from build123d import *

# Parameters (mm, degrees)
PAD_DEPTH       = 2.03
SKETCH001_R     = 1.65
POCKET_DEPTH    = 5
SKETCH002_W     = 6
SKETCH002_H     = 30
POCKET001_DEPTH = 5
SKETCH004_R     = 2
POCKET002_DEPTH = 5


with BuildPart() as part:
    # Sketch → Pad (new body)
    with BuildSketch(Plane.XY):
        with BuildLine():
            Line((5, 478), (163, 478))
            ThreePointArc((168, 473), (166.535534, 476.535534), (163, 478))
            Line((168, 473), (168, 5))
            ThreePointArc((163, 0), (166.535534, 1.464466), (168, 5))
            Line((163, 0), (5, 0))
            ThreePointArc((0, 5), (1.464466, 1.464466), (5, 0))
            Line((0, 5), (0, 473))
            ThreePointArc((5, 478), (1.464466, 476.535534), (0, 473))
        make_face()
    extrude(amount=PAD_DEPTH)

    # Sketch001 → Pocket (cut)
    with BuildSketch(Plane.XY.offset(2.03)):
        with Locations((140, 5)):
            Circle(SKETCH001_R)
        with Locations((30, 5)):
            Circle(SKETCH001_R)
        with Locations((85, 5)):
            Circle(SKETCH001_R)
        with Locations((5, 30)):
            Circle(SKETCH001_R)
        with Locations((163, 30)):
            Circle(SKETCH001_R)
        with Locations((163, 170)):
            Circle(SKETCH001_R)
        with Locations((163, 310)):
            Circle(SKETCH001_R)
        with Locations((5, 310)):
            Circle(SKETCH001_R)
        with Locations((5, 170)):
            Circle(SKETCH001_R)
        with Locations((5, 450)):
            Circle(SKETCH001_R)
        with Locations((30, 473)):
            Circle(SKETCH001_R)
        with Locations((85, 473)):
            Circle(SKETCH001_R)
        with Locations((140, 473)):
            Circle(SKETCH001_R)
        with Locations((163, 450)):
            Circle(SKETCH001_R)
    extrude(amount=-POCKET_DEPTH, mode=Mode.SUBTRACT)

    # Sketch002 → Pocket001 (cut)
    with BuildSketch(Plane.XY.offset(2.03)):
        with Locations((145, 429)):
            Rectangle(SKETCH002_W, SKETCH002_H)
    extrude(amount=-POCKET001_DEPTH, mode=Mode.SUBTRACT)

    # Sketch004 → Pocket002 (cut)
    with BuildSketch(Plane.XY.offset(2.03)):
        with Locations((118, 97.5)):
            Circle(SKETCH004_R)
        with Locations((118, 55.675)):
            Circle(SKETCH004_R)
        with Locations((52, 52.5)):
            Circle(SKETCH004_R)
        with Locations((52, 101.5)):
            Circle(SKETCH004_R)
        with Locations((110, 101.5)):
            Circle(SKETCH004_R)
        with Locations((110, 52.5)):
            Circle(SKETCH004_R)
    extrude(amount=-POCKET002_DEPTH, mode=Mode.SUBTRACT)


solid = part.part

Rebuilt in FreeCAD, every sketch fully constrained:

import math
import FreeCAD as App
import Part
import Sketcher

V = App.Vector
Q = App.Units.Quantity


def add_polygon(sketch, points):
    """Adds a closed chain of lines whose ends are joined by coincident constraints."""
    first, n = sketch.GeometryCount, len(points)
    for a, b in zip(points, points[1:] + points[:1]):
        sketch.addGeometry(Part.LineSegment(App.Vector(*a, 0), App.Vector(*b, 0)), False)
    for i in range(n):
        sketch.addConstraint(Sketcher.Constraint("Coincident", first + i, 2, first + (i + 1) % n, 1))

doc = App.newDocument("Part")
params = doc.addObject("Spreadsheet::Sheet", "Params")
for row, (alias, value) in enumerate([
    ("sketch1_radius", "5 mm"),
    ("sketch1_width", "158 mm"),
    ("sketch1_height", "468 mm"),
    ("pad1_length", "2.03 mm"),
    ("sketch2_diameter", "3.3 mm"),
    ("pocket1_length", "5 mm"),
    ("sketch3_width", "6 mm"),
    ("sketch3_height", "30 mm"),
    ("pocket2_length", "5 mm"),
    ("sketch4_diameter", "4 mm"),
    ("pocket3_length", "5 mm"),
], start=1):
    params.set(f"A{row}", alias)
    params.set(f"B{row}", "=" + value)
    params.setAlias(f"B{row}", alias)

body = doc.addObject("PartDesign::Body", "Body")

# Sketch on XY plane
sketch1 = body.newObject("Sketcher::SketchObject", "Sketch")
sketch1.AttachmentSupport = (doc.getObject("XY_Plane"), [""])
sketch1.MapMode = "FlatFace"
sketch1.addGeometry(Part.LineSegment(V(163, 478, 0), V(5, 478, 0)), False)
sketch1.addGeometry(Part.ArcOfCircle(Part.Circle(V(5, 473, 0), V(0, 0, 1), 5), math.radians(90), math.radians(180)), False)
sketch1.addGeometry(Part.LineSegment(V(0, 473, 0), V(0, 5, 0)), False)
sketch1.addGeometry(Part.ArcOfCircle(Part.Circle(V(5, 5, 0), V(0, 0, 1), 5), math.radians(180), math.radians(270)), False)
sketch1.addGeometry(Part.LineSegment(V(5, 0, 0), V(163, 0, 0)), False)
sketch1.addGeometry(Part.ArcOfCircle(Part.Circle(V(163, 5, 0), V(0, 0, 1), 5), math.radians(-90), math.radians(0)), False)
sketch1.addGeometry(Part.LineSegment(V(168, 5, 0), V(168, 473, 0)), False)
sketch1.addGeometry(Part.ArcOfCircle(Part.Circle(V(163, 473, 0), V(0, 0, 1), 5), math.radians(0), math.radians(90)), False)
sketch1.addConstraint(Sketcher.Constraint("Tangent", 0, 2, 1, 1))
sketch1.addConstraint(Sketcher.Constraint("Tangent", 1, 2, 2, 1))
sketch1.addConstraint(Sketcher.Constraint("Tangent", 2, 2, 3, 1))
sketch1.addConstraint(Sketcher.Constraint("Tangent", 3, 2, 4, 1))
sketch1.addConstraint(Sketcher.Constraint("Tangent", 4, 2, 5, 1))
sketch1.addConstraint(Sketcher.Constraint("Tangent", 5, 2, 6, 1))
sketch1.addConstraint(Sketcher.Constraint("Tangent", 6, 2, 7, 1))
sketch1.addConstraint(Sketcher.Constraint("Tangent", 7, 2, 0, 1))
sketch1.addConstraint(Sketcher.Constraint("Horizontal", 0))
sketch1.addConstraint(Sketcher.Constraint("Vertical", 2))
sketch1.addConstraint(Sketcher.Constraint("Horizontal", 4))
sketch1.addConstraint(Sketcher.Constraint("Vertical", 6))
sketch1.addConstraint(Sketcher.Constraint("Equal", 1, 3))
sketch1.addConstraint(Sketcher.Constraint("Equal", 3, 5))
sketch1.addConstraint(Sketcher.Constraint("Equal", 5, 7))
sketch1.addConstraint(Sketcher.Constraint("PointOnObject", 1, 2, -2))
sketch1.addConstraint(Sketcher.Constraint("PointOnObject", 3, 2, -1))
sketch1.addConstraint(Sketcher.Constraint("Radius", 1, Q("5 mm")))
sketch1.addConstraint(Sketcher.Constraint("DistanceX", 0, 2, 0, 1, Q("158 mm")))
sketch1.addConstraint(Sketcher.Constraint("DistanceY", 2, 2, 2, 1, Q("468 mm")))
sketch1.setExpression("Constraints[17]", "Params.sketch1_radius")
sketch1.setExpression("Constraints[18]", "Params.sketch1_width")
sketch1.setExpression("Constraints[19]", "Params.sketch1_height")
pad1 = body.newObject("PartDesign::Pad", "Pad")
pad1.Profile = sketch1
pad1.setExpression("Length", "Params.pad1_length")

# Sketch on XY plane
sketch2 = body.newObject("Sketcher::SketchObject", "Sketch001")
sketch2.AttachmentSupport = (doc.getObject("XY_Plane"), [""])
sketch2.MapMode = "FlatFace"
sketch2.AttachmentOffset = App.Placement(V(0, 0, 2.03), App.Rotation())
sketch2.addGeometry(Part.Circle(V(140, 5, 0), V(0, 0, 1), 1.6), False)
sketch2.addGeometry(Part.Circle(V(30, 5, 0), V(0, 0, 1), 1.6), False)
sketch2.addGeometry(Part.Circle(V(85, 5, 0), V(0, 0, 1), 1.6), False)
sketch2.addGeometry(Part.Circle(V(5, 30, 0), V(0, 0, 1), 1.6), False)
sketch2.addGeometry(Part.Circle(V(163, 30, 0), V(0, 0, 1), 1.6), False)
sketch2.addGeometry(Part.Circle(V(163, 170, 0), V(0, 0, 1), 1.6), False)
sketch2.addGeometry(Part.Circle(V(163, 310, 0), V(0, 0, 1), 1.6), False)
sketch2.addGeometry(Part.Circle(V(5, 310, 0), V(0, 0, 1), 1.6), False)
sketch2.addGeometry(Part.Circle(V(5, 170, 0), V(0, 0, 1), 1.6), False)
sketch2.addGeometry(Part.Circle(V(5, 450, 0), V(0, 0, 1), 1.6), False)
sketch2.addGeometry(Part.Circle(V(30, 473, 0), V(0, 0, 1), 1.6), False)
sketch2.addGeometry(Part.Circle(V(85, 473, 0), V(0, 0, 1), 1.6), False)
sketch2.addGeometry(Part.Circle(V(140, 473, 0), V(0, 0, 1), 1.6), False)
sketch2.addGeometry(Part.Circle(V(163, 450, 0), V(0, 0, 1), 1.6), False)
sketch2.addConstraint(Sketcher.Constraint("Equal", 0, 1))
sketch2.addConstraint(Sketcher.Constraint("Equal", 1, 2))
sketch2.addConstraint(Sketcher.Constraint("Equal", 2, 3))
sketch2.addConstraint(Sketcher.Constraint("Equal", 3, 4))
sketch2.addConstraint(Sketcher.Constraint("Equal", 4, 5))
sketch2.addConstraint(Sketcher.Constraint("Equal", 5, 6))
sketch2.addConstraint(Sketcher.Constraint("Equal", 6, 7))
sketch2.addConstraint(Sketcher.Constraint("Equal", 7, 8))
sketch2.addConstraint(Sketcher.Constraint("Equal", 8, 9))
sketch2.addConstraint(Sketcher.Constraint("Equal", 9, 10))
sketch2.addConstraint(Sketcher.Constraint("Equal", 10, 11))
sketch2.addConstraint(Sketcher.Constraint("Equal", 11, 12))
sketch2.addConstraint(Sketcher.Constraint("Equal", 12, 13))
sketch2.addConstraint(Sketcher.Constraint("Horizontal", 0, 3, 1, 3))
sketch2.addConstraint(Sketcher.Constraint("Horizontal", 1, 3, 2, 3))
sketch2.addConstraint(Sketcher.Constraint("Horizontal", 3, 3, 4, 3))
sketch2.addConstraint(Sketcher.Constraint("Horizontal", 6, 3, 7, 3))
sketch2.addConstraint(Sketcher.Constraint("Horizontal", 5, 3, 8, 3))
sketch2.addConstraint(Sketcher.Constraint("Horizontal", 10, 3, 11, 3))
sketch2.addConstraint(Sketcher.Constraint("Horizontal", 11, 3, 12, 3))
sketch2.addConstraint(Sketcher.Constraint("Horizontal", 9, 3, 13, 3))
sketch2.addConstraint(Sketcher.Constraint("Vertical", 4, 3, 5, 3))
sketch2.addConstraint(Sketcher.Constraint("Vertical", 5, 3, 6, 3))
sketch2.addConstraint(Sketcher.Constraint("Vertical", 3, 3, 7, 3))
sketch2.addConstraint(Sketcher.Constraint("Vertical", 7, 3, 8, 3))
sketch2.addConstraint(Sketcher.Constraint("Vertical", 8, 3, 9, 3))
sketch2.addConstraint(Sketcher.Constraint("Vertical", 1, 3, 10, 3))
sketch2.addConstraint(Sketcher.Constraint("Vertical", 2, 3, 11, 3))
sketch2.addConstraint(Sketcher.Constraint("Vertical", 0, 3, 12, 3))
sketch2.addConstraint(Sketcher.Constraint("Vertical", 6, 3, 13, 3))
sketch2.addConstraint(Sketcher.Constraint("Diameter", 0, Q("3.3 mm")))
sketch2.addConstraint(Sketcher.Constraint("DistanceX", -1, 1, 0, 3, Q("140 mm")))
sketch2.addConstraint(Sketcher.Constraint("DistanceY", -1, 1, 0, 3, Q("5 mm")))
sketch2.addConstraint(Sketcher.Constraint("DistanceX", -1, 1, 1, 3, Q("30 mm")))
sketch2.addConstraint(Sketcher.Constraint("DistanceX", -1, 1, 2, 3, Q("85 mm")))
sketch2.addConstraint(Sketcher.Constraint("DistanceX", -1, 1, 3, 3, Q("5 mm")))
sketch2.addConstraint(Sketcher.Constraint("DistanceY", -1, 1, 3, 3, Q("30 mm")))
sketch2.addConstraint(Sketcher.Constraint("DistanceX", -1, 1, 4, 3, Q("163 mm")))
sketch2.addConstraint(Sketcher.Constraint("DistanceY", -1, 1, 5, 3, Q("170 mm")))
sketch2.addConstraint(Sketcher.Constraint("DistanceY", -1, 1, 6, 3, Q("310 mm")))
sketch2.addConstraint(Sketcher.Constraint("DistanceY", -1, 1, 9, 3, Q("450 mm")))
sketch2.addConstraint(Sketcher.Constraint("DistanceY", -1, 1, 10, 3, Q("473 mm")))
sketch2.setExpression("Constraints[30]", "Params.sketch2_diameter")
pocket1 = body.newObject("PartDesign::Pocket", "Pocket")
pocket1.Profile = sketch2
pocket1.setExpression("Length", "Params.pocket1_length")

# Sketch on XY plane
sketch3 = body.newObject("Sketcher::SketchObject", "Sketch002")
sketch3.AttachmentSupport = (doc.getObject("XY_Plane"), [""])
sketch3.MapMode = "FlatFace"
sketch3.AttachmentOffset = App.Placement(V(0, 0, 2.03), App.Rotation())
add_polygon(sketch3, [(142, 444), (142, 414), (148, 414), (148, 444)])  # lines 0-3
sketch3.addConstraint(Sketcher.Constraint("Vertical", 0))
sketch3.addConstraint(Sketcher.Constraint("Horizontal", 1))
sketch3.addConstraint(Sketcher.Constraint("Vertical", 2))
sketch3.addConstraint(Sketcher.Constraint("Horizontal", 3))
sketch3.addConstraint(Sketcher.Constraint("DistanceX", 1, 1, 1, 2, Q("6 mm")))
sketch3.addConstraint(Sketcher.Constraint("DistanceY", 0, 2, 0, 1, Q("30 mm")))
sketch3.addConstraint(Sketcher.Constraint("DistanceX", -1, 1, 0, 2, Q("142 mm")))
sketch3.addConstraint(Sketcher.Constraint("DistanceY", -1, 1, 0, 2, Q("414 mm")))
sketch3.setExpression("Constraints[8]", "Params.sketch3_width")
sketch3.setExpression("Constraints[9]", "Params.sketch3_height")
pocket2 = body.newObject("PartDesign::Pocket", "Pocket001")
pocket2.Profile = sketch3
pocket2.setExpression("Length", "Params.pocket2_length")

# Sketch on XY plane
sketch4 = body.newObject("Sketcher::SketchObject", "Sketch003")
sketch4.AttachmentSupport = (doc.getObject("XY_Plane"), [""])
sketch4.MapMode = "FlatFace"
sketch4.AttachmentOffset = App.Placement(V(0, 0, 2.03), App.Rotation())
sketch4.addGeometry(Part.Circle(V(118, 97.5, 0), V(0, 0, 1), 2), False)
sketch4.addGeometry(Part.Circle(V(118, 55.7, 0), V(0, 0, 1), 2), False)
sketch4.addGeometry(Part.Circle(V(52, 52.5, 0), V(0, 0, 1), 2), False)
sketch4.addGeometry(Part.Circle(V(52, 101.5, 0), V(0, 0, 1), 2), False)
sketch4.addGeometry(Part.Circle(V(110, 101.5, 0), V(0, 0, 1), 2), False)
sketch4.addGeometry(Part.Circle(V(110, 52.5, 0), V(0, 0, 1), 2), False)
sketch4.addConstraint(Sketcher.Constraint("Equal", 0, 1))
sketch4.addConstraint(Sketcher.Constraint("Equal", 1, 2))
sketch4.addConstraint(Sketcher.Constraint("Equal", 2, 3))
sketch4.addConstraint(Sketcher.Constraint("Equal", 3, 4))
sketch4.addConstraint(Sketcher.Constraint("Equal", 4, 5))
sketch4.addConstraint(Sketcher.Constraint("Horizontal", 3, 3, 4, 3))
sketch4.addConstraint(Sketcher.Constraint("Horizontal", 2, 3, 5, 3))
sketch4.addConstraint(Sketcher.Constraint("Vertical", 0, 3, 1, 3))
sketch4.addConstraint(Sketcher.Constraint("Vertical", 2, 3, 3, 3))
sketch4.addConstraint(Sketcher.Constraint("Vertical", 4, 3, 5, 3))
sketch4.addConstraint(Sketcher.Constraint("Diameter", 0, Q("4 mm")))
sketch4.addConstraint(Sketcher.Constraint("DistanceX", -1, 1, 0, 3, Q("118 mm")))
sketch4.addConstraint(Sketcher.Constraint("DistanceX", -1, 1, 2, 3, Q("52 mm")))
sketch4.addConstraint(Sketcher.Constraint("DistanceX", -1, 1, 4, 3, Q("110 mm")))
sketch4.addConstraint(Sketcher.Constraint("DistanceY", 2, 3, 0, 3, Q("45 mm")))
sketch4.addConstraint(Sketcher.Constraint("DistanceY", 2, 3, 3, 3, Q("49 mm")))
sketch4.addConstraint(Sketcher.Constraint("DistanceY", -1, 1, 0, 3, Q("97.5 mm")))
sketch4.addConstraint(Sketcher.Constraint("DistanceY", -1, 1, 1, 3, Q("55.675 mm")))
sketch4.setExpression("Constraints[10]", "Params.sketch4_diameter")
pocket3 = body.newObject("PartDesign::Pocket", "Pocket002")
pocket3.Profile = sketch4
pocket3.setExpression("Length", "Params.pocket3_length")

doc.recompute()
